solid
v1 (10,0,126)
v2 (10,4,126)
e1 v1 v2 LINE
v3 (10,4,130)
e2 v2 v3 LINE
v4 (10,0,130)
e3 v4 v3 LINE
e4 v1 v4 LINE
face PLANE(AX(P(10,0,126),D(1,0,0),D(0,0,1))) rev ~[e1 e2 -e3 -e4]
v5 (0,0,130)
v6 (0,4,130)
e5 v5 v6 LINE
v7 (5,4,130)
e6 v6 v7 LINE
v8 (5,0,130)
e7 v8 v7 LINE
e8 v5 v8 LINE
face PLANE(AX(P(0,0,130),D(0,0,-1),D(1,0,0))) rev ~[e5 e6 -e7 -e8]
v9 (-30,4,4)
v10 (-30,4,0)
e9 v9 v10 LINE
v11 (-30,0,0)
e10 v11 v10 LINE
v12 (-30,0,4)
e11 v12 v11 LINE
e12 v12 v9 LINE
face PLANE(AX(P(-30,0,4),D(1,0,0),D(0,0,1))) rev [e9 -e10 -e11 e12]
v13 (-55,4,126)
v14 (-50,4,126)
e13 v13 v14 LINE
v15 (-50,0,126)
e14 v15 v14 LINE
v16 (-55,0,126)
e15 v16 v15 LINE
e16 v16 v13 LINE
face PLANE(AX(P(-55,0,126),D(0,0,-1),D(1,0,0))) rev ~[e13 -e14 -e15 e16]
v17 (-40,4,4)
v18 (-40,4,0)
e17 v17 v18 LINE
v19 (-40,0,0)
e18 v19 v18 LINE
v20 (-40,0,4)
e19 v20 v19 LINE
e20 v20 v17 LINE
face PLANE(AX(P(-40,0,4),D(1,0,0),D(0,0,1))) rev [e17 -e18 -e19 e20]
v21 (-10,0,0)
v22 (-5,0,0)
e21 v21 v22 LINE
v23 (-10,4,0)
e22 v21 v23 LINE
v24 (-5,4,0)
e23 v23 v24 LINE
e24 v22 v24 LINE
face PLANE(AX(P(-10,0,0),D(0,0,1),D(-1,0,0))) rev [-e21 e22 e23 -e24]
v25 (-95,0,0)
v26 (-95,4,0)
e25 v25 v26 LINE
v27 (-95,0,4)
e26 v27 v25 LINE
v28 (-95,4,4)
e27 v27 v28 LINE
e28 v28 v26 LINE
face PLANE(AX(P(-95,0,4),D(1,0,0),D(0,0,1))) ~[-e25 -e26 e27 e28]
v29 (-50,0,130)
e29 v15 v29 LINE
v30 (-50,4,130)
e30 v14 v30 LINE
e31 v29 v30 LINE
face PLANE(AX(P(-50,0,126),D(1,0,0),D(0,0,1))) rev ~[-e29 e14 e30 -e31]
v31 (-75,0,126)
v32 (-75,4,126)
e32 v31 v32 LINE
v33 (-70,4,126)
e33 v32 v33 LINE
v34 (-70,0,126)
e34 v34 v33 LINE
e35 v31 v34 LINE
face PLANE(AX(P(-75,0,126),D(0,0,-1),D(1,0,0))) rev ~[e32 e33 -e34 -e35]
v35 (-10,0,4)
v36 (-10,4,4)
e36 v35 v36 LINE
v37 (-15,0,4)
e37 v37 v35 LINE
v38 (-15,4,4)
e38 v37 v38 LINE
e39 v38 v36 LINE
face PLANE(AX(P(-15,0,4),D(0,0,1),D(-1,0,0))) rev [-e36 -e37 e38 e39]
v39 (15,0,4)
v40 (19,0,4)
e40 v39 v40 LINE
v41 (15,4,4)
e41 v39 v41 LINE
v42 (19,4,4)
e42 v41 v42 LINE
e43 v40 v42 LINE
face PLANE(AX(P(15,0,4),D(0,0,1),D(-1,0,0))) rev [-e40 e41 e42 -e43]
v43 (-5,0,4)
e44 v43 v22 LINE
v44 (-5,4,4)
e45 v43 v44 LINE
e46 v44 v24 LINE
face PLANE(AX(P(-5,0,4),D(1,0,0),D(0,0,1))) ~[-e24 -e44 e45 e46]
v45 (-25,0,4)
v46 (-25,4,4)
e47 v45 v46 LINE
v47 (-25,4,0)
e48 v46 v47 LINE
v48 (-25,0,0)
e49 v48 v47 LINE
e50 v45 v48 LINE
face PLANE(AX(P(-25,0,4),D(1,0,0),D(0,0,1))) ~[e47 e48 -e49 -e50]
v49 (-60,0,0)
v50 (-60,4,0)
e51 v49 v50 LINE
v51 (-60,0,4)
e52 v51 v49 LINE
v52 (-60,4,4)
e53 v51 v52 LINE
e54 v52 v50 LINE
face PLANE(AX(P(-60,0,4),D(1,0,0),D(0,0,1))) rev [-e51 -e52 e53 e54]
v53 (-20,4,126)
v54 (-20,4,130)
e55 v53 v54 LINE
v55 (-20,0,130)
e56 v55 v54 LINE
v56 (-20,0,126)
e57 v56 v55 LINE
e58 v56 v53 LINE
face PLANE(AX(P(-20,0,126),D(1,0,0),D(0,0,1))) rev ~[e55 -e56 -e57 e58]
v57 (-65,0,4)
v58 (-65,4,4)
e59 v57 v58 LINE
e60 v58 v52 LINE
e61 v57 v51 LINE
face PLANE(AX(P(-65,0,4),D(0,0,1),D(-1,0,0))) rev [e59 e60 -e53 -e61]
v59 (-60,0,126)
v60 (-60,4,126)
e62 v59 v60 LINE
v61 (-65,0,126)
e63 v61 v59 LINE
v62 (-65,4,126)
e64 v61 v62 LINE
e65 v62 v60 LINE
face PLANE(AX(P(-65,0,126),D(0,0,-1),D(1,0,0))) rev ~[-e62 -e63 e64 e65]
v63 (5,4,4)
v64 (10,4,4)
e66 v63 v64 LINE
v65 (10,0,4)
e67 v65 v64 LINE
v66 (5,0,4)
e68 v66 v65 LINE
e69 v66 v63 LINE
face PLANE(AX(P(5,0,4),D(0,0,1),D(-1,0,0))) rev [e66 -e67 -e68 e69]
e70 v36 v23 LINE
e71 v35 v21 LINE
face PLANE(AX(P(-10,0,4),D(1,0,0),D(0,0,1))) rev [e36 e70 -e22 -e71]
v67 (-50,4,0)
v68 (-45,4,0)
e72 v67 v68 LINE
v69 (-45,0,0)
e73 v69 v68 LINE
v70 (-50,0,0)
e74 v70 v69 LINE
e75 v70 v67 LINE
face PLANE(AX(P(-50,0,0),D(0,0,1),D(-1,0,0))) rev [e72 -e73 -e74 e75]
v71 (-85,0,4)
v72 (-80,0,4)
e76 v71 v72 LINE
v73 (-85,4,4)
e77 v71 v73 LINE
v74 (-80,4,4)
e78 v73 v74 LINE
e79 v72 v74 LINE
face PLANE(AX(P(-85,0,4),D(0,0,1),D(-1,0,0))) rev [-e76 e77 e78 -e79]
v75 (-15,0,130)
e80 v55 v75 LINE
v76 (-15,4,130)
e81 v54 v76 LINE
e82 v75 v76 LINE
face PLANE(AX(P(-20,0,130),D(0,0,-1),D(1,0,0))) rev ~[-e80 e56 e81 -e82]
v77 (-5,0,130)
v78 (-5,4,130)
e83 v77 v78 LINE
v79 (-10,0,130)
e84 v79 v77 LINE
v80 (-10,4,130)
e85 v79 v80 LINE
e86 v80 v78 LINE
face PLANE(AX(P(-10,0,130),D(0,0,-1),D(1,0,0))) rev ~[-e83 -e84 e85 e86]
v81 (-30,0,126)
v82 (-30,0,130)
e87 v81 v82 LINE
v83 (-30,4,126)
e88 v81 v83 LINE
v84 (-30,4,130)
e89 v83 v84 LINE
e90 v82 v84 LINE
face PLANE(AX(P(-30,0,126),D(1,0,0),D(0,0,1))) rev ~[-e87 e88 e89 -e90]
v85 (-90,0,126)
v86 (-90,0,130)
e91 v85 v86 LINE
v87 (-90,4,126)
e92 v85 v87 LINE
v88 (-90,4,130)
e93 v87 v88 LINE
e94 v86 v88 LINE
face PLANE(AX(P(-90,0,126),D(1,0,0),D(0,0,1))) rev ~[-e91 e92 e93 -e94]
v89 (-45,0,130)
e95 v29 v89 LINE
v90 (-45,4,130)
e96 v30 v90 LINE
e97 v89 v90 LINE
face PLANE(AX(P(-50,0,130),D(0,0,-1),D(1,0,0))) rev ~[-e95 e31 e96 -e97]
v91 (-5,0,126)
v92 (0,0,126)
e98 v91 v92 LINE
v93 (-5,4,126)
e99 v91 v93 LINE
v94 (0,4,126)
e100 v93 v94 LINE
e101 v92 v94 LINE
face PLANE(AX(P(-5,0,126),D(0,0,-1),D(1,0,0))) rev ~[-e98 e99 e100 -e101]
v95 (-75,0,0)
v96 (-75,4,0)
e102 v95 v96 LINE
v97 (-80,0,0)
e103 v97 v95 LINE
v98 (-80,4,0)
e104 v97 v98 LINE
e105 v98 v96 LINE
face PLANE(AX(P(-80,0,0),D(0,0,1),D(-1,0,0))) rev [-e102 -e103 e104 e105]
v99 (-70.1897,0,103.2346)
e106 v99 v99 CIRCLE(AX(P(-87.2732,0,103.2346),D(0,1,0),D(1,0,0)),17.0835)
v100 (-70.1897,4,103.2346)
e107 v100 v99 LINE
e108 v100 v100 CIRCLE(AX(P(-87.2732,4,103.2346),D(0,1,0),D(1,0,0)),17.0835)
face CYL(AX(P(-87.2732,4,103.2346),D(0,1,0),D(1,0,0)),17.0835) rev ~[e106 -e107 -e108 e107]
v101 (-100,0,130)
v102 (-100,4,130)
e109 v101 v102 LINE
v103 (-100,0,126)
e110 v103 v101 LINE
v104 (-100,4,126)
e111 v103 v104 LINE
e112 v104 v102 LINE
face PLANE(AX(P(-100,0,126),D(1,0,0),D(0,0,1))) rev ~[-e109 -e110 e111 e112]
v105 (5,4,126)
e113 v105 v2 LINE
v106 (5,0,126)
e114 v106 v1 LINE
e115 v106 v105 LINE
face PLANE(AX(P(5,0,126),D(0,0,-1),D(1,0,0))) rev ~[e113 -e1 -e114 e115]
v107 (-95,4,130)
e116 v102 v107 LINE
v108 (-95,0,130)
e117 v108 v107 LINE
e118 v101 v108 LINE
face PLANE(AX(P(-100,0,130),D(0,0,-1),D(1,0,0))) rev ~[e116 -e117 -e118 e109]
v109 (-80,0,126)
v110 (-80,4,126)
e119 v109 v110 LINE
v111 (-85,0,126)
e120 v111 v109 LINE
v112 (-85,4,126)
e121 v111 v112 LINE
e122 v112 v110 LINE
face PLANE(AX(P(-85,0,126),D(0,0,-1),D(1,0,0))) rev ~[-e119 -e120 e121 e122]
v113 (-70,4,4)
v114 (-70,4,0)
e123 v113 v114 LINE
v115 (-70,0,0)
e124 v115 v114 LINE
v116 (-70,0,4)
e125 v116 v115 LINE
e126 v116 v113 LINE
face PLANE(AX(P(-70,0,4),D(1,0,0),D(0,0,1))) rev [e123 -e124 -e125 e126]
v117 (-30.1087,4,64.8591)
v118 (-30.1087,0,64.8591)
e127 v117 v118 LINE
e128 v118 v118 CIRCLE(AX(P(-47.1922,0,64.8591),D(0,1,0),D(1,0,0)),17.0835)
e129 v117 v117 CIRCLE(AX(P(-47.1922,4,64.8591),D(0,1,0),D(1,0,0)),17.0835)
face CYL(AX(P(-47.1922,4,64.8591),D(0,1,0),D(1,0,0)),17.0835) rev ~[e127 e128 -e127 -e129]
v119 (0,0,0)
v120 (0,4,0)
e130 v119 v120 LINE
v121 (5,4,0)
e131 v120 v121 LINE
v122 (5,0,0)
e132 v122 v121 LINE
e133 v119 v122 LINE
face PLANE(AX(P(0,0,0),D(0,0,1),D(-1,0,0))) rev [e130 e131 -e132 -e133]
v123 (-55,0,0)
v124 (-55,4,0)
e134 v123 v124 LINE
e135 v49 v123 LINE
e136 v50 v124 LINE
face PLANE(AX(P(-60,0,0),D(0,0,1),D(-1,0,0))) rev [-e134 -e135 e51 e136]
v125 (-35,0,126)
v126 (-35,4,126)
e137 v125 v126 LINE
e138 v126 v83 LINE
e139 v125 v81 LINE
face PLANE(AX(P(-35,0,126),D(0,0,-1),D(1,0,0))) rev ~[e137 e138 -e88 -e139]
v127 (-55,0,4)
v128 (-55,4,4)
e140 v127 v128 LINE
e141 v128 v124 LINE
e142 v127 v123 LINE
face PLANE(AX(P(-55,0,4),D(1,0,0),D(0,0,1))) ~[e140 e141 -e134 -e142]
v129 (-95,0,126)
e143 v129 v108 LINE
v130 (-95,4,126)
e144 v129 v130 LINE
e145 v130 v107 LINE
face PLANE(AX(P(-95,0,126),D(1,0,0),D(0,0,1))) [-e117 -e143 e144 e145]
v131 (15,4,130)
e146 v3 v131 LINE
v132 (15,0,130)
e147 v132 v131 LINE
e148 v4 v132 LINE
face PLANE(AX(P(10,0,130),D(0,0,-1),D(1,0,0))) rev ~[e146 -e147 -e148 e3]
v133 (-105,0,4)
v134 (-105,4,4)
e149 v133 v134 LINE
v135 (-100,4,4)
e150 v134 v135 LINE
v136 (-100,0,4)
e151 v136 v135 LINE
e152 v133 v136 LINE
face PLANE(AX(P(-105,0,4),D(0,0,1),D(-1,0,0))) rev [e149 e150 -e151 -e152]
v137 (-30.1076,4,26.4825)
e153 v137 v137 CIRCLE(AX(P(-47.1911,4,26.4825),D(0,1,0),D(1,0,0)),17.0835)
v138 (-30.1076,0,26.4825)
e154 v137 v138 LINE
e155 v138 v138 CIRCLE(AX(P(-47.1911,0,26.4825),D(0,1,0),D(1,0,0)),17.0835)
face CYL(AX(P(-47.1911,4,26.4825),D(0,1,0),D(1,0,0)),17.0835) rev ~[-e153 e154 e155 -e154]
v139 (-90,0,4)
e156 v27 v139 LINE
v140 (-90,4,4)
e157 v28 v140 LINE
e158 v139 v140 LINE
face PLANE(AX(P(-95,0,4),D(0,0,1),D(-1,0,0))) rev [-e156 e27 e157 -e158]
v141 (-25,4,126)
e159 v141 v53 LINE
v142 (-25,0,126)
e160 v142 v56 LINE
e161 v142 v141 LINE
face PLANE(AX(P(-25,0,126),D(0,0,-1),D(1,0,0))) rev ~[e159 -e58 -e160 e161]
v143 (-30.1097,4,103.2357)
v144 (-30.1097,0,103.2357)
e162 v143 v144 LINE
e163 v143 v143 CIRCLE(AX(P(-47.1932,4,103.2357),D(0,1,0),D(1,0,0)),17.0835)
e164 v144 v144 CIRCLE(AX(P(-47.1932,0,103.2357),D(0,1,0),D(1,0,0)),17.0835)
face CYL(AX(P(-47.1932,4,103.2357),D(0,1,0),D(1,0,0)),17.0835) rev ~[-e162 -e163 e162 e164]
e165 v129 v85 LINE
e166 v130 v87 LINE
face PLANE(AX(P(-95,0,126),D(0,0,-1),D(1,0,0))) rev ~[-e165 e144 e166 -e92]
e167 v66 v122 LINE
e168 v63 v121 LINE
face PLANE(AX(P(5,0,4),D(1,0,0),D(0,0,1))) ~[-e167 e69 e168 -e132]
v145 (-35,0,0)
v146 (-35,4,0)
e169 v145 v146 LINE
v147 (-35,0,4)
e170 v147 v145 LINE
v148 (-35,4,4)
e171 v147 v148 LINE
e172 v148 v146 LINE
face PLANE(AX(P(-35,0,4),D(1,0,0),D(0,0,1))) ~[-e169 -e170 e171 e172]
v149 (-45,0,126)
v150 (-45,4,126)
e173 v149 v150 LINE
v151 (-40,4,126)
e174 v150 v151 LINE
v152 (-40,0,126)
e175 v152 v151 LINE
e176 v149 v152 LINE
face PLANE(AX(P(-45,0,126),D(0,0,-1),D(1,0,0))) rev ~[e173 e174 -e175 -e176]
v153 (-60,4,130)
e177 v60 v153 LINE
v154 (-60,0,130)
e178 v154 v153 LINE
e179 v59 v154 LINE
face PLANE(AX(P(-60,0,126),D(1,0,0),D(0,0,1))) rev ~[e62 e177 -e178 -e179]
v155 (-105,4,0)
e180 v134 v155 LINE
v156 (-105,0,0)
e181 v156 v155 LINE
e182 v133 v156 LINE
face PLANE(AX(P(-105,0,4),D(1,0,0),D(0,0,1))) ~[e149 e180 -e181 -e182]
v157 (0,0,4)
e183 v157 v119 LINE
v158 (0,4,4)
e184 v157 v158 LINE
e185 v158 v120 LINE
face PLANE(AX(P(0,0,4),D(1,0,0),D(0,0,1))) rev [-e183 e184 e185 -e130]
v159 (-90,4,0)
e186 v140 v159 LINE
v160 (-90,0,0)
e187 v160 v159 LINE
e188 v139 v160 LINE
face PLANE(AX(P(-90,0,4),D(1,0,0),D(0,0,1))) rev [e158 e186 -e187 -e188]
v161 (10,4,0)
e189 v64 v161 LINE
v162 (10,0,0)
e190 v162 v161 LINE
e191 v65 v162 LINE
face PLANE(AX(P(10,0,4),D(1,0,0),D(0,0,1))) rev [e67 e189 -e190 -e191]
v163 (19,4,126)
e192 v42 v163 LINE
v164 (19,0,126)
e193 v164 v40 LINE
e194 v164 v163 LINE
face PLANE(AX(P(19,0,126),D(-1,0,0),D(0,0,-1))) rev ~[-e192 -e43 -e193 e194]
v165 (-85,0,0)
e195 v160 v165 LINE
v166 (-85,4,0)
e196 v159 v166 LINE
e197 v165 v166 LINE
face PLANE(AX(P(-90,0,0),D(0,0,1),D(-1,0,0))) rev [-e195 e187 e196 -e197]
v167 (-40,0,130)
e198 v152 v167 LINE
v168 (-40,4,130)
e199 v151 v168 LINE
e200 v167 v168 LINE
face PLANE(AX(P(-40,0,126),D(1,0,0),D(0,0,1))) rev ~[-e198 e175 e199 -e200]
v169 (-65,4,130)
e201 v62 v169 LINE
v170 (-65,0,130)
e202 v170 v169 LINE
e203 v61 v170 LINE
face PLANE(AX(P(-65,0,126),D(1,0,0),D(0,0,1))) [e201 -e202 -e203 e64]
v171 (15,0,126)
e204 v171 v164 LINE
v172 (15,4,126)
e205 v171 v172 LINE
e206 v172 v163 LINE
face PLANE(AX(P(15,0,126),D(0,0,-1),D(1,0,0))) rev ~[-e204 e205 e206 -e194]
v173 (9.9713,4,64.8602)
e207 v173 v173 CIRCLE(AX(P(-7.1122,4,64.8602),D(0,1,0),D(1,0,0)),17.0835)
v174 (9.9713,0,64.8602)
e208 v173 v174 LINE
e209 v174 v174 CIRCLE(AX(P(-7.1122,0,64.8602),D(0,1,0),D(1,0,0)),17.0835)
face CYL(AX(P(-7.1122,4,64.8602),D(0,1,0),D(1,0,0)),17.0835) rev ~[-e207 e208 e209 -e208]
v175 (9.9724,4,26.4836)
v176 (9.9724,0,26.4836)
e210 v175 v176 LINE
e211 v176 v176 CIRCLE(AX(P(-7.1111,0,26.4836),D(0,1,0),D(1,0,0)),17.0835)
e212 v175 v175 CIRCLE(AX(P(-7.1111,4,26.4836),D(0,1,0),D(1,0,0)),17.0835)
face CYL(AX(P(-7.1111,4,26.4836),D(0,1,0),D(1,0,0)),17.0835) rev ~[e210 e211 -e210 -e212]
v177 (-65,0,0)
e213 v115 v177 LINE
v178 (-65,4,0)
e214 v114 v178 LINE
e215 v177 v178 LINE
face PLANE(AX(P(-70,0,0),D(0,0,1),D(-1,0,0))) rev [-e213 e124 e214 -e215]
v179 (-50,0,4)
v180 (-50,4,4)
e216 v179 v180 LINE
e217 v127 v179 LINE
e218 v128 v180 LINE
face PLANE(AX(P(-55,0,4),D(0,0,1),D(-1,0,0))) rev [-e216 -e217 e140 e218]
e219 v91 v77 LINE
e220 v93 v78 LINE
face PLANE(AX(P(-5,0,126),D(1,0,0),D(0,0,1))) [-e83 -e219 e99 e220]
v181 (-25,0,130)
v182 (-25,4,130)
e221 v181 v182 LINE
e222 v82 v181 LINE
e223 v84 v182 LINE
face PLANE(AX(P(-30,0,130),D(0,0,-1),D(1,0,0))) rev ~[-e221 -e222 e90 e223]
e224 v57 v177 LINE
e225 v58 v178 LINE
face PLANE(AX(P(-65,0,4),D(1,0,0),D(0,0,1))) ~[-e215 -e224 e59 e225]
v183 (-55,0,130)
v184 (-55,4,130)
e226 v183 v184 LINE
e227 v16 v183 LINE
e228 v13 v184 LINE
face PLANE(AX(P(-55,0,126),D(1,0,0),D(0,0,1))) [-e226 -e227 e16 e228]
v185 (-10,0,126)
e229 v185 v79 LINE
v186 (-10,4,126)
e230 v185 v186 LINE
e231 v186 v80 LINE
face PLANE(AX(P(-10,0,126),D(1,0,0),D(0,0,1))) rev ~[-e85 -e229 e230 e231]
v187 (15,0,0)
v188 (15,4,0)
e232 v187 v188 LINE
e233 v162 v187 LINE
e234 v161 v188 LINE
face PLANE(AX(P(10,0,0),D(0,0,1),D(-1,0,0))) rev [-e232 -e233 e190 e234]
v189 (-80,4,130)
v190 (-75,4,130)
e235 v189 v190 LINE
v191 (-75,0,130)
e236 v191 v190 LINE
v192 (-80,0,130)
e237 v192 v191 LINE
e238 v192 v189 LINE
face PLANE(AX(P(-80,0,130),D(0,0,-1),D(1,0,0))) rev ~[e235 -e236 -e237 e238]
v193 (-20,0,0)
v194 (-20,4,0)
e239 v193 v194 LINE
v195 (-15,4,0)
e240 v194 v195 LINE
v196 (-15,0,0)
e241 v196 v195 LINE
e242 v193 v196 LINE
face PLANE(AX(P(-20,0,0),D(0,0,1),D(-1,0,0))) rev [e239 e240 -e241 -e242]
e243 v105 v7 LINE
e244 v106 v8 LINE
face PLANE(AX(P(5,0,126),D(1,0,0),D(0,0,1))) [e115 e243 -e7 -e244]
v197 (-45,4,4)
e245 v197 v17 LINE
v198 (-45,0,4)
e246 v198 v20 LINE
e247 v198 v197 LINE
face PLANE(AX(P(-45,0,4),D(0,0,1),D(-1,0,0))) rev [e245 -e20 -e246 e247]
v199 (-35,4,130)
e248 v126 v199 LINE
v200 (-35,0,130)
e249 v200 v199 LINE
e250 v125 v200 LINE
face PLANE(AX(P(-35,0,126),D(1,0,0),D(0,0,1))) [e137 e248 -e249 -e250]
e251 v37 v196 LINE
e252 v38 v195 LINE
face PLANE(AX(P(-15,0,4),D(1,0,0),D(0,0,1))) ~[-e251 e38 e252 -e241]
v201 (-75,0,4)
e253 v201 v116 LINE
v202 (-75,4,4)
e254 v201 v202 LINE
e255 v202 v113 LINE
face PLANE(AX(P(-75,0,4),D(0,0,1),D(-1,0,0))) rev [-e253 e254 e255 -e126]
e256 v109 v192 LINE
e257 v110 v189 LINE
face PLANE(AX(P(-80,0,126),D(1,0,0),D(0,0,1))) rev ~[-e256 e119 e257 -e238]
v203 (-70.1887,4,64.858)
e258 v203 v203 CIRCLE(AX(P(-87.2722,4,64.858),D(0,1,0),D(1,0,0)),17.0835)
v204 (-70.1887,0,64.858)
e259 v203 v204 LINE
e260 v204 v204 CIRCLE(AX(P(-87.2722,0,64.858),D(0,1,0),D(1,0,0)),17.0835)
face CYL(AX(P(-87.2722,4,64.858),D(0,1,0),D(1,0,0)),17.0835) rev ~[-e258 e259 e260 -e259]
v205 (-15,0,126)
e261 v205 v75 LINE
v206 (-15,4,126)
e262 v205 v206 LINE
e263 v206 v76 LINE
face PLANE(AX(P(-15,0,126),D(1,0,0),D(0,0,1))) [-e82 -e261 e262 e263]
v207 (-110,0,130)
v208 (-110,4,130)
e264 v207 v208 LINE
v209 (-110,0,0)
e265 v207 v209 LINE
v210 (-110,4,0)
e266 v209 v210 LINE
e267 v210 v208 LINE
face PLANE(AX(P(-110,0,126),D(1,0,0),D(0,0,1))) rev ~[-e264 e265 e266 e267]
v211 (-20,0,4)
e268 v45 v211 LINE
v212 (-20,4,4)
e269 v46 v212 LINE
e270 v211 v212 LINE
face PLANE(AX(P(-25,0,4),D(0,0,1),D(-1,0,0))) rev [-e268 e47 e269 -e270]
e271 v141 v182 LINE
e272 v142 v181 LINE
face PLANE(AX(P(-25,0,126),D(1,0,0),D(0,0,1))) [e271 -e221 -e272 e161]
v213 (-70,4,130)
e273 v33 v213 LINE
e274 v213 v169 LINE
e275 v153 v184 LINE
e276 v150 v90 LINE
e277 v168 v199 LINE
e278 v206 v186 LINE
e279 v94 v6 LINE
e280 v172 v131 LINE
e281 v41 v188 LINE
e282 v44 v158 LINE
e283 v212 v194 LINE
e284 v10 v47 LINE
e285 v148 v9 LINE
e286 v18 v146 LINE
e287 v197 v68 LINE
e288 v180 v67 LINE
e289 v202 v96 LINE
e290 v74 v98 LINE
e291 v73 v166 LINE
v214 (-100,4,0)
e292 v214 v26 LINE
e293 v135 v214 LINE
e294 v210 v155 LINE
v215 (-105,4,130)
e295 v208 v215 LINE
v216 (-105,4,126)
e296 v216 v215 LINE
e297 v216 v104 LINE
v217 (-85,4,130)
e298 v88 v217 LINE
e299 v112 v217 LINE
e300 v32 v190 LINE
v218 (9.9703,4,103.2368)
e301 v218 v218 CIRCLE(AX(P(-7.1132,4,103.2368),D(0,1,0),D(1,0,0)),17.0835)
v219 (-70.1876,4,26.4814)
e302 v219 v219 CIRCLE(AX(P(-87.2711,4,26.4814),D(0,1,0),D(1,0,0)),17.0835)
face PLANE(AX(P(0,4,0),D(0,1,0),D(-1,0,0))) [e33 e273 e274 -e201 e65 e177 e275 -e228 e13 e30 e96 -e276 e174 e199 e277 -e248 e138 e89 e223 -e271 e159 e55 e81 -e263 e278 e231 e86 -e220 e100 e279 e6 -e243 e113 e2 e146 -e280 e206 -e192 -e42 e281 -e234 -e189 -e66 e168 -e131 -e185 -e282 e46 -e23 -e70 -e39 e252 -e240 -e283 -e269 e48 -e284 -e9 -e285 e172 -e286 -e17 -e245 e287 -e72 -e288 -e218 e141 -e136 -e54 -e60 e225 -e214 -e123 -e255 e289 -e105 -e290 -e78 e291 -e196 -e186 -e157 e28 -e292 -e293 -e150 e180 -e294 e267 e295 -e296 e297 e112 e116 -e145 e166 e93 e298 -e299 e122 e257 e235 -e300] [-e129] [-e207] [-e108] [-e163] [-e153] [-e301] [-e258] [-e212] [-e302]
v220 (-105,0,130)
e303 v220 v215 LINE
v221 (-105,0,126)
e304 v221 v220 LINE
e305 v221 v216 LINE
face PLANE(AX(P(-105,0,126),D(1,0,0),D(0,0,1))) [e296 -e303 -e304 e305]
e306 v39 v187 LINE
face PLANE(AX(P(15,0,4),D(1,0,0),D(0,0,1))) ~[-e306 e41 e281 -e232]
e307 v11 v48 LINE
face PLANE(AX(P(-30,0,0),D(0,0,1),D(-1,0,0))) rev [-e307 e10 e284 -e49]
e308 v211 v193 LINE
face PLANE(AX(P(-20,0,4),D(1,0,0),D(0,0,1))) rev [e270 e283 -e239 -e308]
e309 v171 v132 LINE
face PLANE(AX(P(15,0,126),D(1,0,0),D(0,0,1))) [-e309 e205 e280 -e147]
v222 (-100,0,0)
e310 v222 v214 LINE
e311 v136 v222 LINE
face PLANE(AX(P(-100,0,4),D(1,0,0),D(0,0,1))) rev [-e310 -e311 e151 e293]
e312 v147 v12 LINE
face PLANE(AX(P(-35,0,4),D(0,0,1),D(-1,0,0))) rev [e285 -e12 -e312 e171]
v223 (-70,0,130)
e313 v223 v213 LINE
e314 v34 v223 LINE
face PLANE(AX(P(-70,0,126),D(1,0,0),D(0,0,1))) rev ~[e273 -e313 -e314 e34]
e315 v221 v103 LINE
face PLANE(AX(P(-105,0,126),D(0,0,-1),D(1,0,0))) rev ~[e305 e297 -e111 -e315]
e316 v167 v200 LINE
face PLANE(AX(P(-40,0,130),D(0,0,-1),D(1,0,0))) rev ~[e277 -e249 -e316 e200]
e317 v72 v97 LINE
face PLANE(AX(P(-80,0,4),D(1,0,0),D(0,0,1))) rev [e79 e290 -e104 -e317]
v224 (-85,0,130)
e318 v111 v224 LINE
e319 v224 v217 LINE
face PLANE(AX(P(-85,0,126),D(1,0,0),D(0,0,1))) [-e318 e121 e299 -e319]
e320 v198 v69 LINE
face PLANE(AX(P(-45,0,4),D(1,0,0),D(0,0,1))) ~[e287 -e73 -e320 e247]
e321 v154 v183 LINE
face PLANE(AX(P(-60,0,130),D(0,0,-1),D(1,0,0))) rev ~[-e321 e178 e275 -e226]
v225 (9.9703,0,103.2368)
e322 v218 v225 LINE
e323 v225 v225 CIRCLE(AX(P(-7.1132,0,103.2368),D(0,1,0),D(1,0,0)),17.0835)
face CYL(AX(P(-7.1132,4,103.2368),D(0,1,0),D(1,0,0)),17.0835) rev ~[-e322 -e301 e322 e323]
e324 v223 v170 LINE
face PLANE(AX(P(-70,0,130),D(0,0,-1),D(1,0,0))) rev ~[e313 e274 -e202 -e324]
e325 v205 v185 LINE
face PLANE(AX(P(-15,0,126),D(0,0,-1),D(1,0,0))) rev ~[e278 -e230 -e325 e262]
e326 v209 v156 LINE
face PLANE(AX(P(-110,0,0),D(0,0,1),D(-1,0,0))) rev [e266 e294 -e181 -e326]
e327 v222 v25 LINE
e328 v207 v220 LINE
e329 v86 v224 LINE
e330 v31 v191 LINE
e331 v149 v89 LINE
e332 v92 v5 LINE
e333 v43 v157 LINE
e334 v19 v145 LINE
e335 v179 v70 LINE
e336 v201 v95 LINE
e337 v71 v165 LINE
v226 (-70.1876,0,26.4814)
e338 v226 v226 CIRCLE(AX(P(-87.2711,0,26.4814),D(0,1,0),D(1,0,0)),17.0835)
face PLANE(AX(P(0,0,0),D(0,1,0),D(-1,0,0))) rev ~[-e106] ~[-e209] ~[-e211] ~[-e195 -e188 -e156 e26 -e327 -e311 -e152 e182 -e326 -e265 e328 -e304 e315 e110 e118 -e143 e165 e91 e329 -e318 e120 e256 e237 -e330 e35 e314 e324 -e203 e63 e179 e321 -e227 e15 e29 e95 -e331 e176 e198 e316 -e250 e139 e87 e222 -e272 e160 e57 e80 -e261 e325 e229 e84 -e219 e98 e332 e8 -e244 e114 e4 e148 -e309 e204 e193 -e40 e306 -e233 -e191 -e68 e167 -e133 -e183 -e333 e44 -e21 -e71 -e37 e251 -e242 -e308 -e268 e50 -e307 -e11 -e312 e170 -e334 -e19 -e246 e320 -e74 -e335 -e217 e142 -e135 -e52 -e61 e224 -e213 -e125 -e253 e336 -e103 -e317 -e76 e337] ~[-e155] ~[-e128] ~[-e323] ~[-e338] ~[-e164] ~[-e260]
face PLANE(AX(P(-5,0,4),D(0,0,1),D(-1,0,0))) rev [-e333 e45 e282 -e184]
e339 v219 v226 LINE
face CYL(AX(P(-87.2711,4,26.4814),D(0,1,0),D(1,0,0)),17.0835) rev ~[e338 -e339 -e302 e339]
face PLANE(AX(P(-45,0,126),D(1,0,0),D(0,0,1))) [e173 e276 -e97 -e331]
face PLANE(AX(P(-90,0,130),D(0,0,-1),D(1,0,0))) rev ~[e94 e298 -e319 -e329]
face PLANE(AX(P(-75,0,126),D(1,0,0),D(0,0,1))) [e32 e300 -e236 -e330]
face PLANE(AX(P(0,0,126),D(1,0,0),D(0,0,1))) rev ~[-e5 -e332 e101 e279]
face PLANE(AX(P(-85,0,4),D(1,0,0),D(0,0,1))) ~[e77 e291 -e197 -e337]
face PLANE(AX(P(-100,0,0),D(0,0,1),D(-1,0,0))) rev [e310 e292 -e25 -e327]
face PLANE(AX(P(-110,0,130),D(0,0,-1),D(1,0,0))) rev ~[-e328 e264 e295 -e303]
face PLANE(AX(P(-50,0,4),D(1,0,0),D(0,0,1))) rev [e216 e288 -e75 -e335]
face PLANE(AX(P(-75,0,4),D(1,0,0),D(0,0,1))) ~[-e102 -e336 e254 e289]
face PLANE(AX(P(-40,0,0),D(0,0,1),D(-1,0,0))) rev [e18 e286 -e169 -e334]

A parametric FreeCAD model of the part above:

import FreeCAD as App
import Part
import Sketcher
Q = App.Units.Quantity


def add_polygon(sketch, points):
    """Adds a closed chain of lines whose ends are joined by coincident constraints."""
    first, n = sketch.GeometryCount, len(points)
    for a, b in zip(points, points[1:] + points[:1]):
        sketch.addGeometry(Part.LineSegment(App.Vector(*a, 0), App.Vector(*b, 0)), False)
    for i in range(n):
        sketch.addConstraint(Sketcher.Constraint("Coincident", first + i, 2, first + (i + 1) % n, 1))

doc = App.newDocument("Part")
body = doc.addObject("PartDesign::Body", "Body")

# Sketch on XZ plane
sketch1 = body.newObject("Sketcher::SketchObject", "Sketch")
sketch1.AttachmentSupport = (doc.getObject("XZ_Plane"), [""])
sketch1.MapMode = "FlatFace"
add_polygon(sketch1, [(15, 126), (19, 126), (19, 65), (-110, 65), (-110, 130), (-105, 130), (-105, 126), (-100, 126), (-100, 130), (-95, 130), (-95, 126), (-90, 126), (-90, 130), (-85, 130), (-85, 126), (-80, 126), (-80, 130), (-75, 130), (-75, 126), (-70, 126), (-70, 130), (-65, 130), (-65, 126), (-60, 126), (-60, 130), (-55, 130), (-55, 126), (-50, 126), (-50, 130), (-45, 130), (-45, 126), (-40, 126), (-40, 130), (-35, 130), (-35, 126), (-30, 126), (-30, 130), (-25, 130), (-25, 126), (-20, 126), (-20, 130), (-15, 130), (-15, 126), (-10, 126), (-10, 130), (-5, 130), (-5, 126), (0, 126), (0, 130), (5, 130), (5, 126), (10, 126), (10, 130), (15, 130)])  # lines 0-53
sketch1.addConstraint(Sketcher.Constraint("Horizontal", 0))
sketch1.addConstraint(Sketcher.Constraint("Vertical", 1))
sketch1.addConstraint(Sketcher.Constraint("Horizontal", 2))
sketch1.addConstraint(Sketcher.Constraint("Vertical", 3))
sketch1.addConstraint(Sketcher.Constraint("Horizontal", 4))
sketch1.addConstraint(Sketcher.Constraint("Vertical", 5))
sketch1.addConstraint(Sketcher.Constraint("Horizontal", 6))
sketch1.addConstraint(Sketcher.Constraint("Vertical", 7))
sketch1.addConstraint(Sketcher.Constraint("Horizontal", 8))
sketch1.addConstraint(Sketcher.Constraint("Vertical", 9))
sketch1.addConstraint(Sketcher.Constraint("Horizontal", 10))
sketch1.addConstraint(Sketcher.Constraint("Vertical", 11))
sketch1.addConstraint(Sketcher.Constraint("Horizontal", 12))
sketch1.addConstraint(Sketcher.Constraint("Vertical", 13))
sketch1.addConstraint(Sketcher.Constraint("Horizontal", 14))
sketch1.addConstraint(Sketcher.Constraint("Vertical", 15))
sketch1.addConstraint(Sketcher.Constraint("Horizontal", 16))
sketch1.addConstraint(Sketcher.Constraint("Vertical", 17))
sketch1.addConstraint(Sketcher.Constraint("Horizontal", 18))
sketch1.addConstraint(Sketcher.Constraint("Vertical", 19))
sketch1.addConstraint(Sketcher.Constraint("Horizontal", 20))
sketch1.addConstraint(Sketcher.Constraint("Vertical", 21))
sketch1.addConstraint(Sketcher.Constraint("Horizontal", 22))
sketch1.addConstraint(Sketcher.Constraint("Vertical", 23))
sketch1.addConstraint(Sketcher.Constraint("Horizontal", 24))
sketch1.addConstraint(Sketcher.Constraint("Vertical", 25))
sketch1.addConstraint(Sketcher.Constraint("Horizontal", 26))
sketch1.addConstraint(Sketcher.Constraint("Vertical", 27))
sketch1.addConstraint(Sketcher.Constraint("Horizontal", 28))
sketch1.addConstraint(Sketcher.Constraint("Vertical", 29))
sketch1.addConstraint(Sketcher.Constraint("Horizontal", 30))
sketch1.addConstraint(Sketcher.Constraint("Vertical", 31))
sketch1.addConstraint(Sketcher.Constraint("Horizontal", 32))
sketch1.addConstraint(Sketcher.Constraint("Vertical", 33))
sketch1.addConstraint(Sketcher.Constraint("Horizontal", 34))
sketch1.addConstraint(Sketcher.Constraint("Vertical", 35))
sketch1.addConstraint(Sketcher.Constraint("Horizontal", 36))
sketch1.addConstraint(Sketcher.Constraint("Vertical", 37))
sketch1.addConstraint(Sketcher.Constraint("Horizontal", 38))
sketch1.addConstraint(Sketcher.Constraint("Vertical", 39))
sketch1.addConstraint(Sketcher.Constraint("Horizontal", 40))
sketch1.addConstraint(Sketcher.Constraint("Vertical", 41))
sketch1.addConstraint(Sketcher.Constraint("Horizontal", 42))
sketch1.addConstraint(Sketcher.Constraint("Vertical", 43))
sketch1.addConstraint(Sketcher.Constraint("Horizontal", 44))
sketch1.addConstraint(Sketcher.Constraint("Vertical", 45))
sketch1.addConstraint(Sketcher.Constraint("Horizontal", 46))
sketch1.addConstraint(Sketcher.Constraint("Vertical", 47))
sketch1.addConstraint(Sketcher.Constraint("Horizontal", 48))
sketch1.addConstraint(Sketcher.Constraint("Vertical", 49))
sketch1.addConstraint(Sketcher.Constraint("Horizontal", 50))
sketch1.addConstraint(Sketcher.Constraint("Vertical", 51))
sketch1.addConstraint(Sketcher.Constraint("Horizontal", 52))
sketch1.addConstraint(Sketcher.Constraint("Vertical", 53))
sketch1.addConstraint(Sketcher.Constraint("Symmetric", 44, 2, 48, 2, -2))
sketch1.addConstraint(Sketcher.Constraint("Symmetric", 42, 2, 50, 2, -2))
sketch1.addConstraint(Sketcher.Constraint("Symmetric", 40, 2, 52, 2, -2))
sketch1.addConstraint(Sketcher.Constraint("PointOnObject", 46, 2, -2))
sketch1.addConstraint(Sketcher.Constraint("Horizontal", 0, 2, 5, 2))
sketch1.addConstraint(Sketcher.Constraint("Horizontal", 4, 2, 7, 2))
sketch1.addConstraint(Sketcher.Constraint("Horizontal", 6, 2, 9, 2))
sketch1.addConstraint(Sketcher.Constraint("Horizontal", 8, 2, 11, 2))
sketch1.addConstraint(Sketcher.Constraint("Horizontal", 10, 2, 13, 2))
sketch1.addConstraint(Sketcher.Constraint("Horizontal", 12, 2, 15, 2))
sketch1.addConstraint(Sketcher.Constraint("Horizontal", 14, 2, 17, 2))
sketch1.addConstraint(Sketcher.Constraint("Horizontal", 16, 2, 19, 2))
sketch1.addConstraint(Sketcher.Constraint("Horizontal", 18, 2, 21, 2))
sketch1.addConstraint(Sketcher.Constraint("Horizontal", 20, 2, 23, 2))
sketch1.addConstraint(Sketcher.Constraint("Horizontal", 22, 2, 25, 2))
sketch1.addConstraint(Sketcher.Constraint("Horizontal", 24, 2, 27, 2))
sketch1.addConstraint(Sketcher.Constraint("Horizontal", 26, 2, 29, 2))
sketch1.addConstraint(Sketcher.Constraint("Horizontal", 28, 2, 31, 2))
sketch1.addConstraint(Sketcher.Constraint("Horizontal", 30, 2, 33, 2))
sketch1.addConstraint(Sketcher.Constraint("Horizontal", 32, 2, 35, 2))
sketch1.addConstraint(Sketcher.Constraint("Horizontal", 34, 2, 37, 2))
sketch1.addConstraint(Sketcher.Constraint("Horizontal", 36, 2, 39, 2))
sketch1.addConstraint(Sketcher.Constraint("Horizontal", 38, 2, 41, 2))
sketch1.addConstraint(Sketcher.Constraint("Horizontal", 40, 2, 43, 2))
sketch1.addConstraint(Sketcher.Constraint("Horizontal", 42, 2, 45, 2))
sketch1.addConstraint(Sketcher.Constraint("Equal", 4, 6))
sketch1.addConstraint(Sketcher.Constraint("Equal", 6, 8))
sketch1.addConstraint(Sketcher.Constraint("Equal", 8, 10))
sketch1.addConstraint(Sketcher.Constraint("Equal", 10, 12))
sketch1.addConstraint(Sketcher.Constraint("Equal", 12, 14))
sketch1.addConstraint(Sketcher.Constraint("Equal", 14, 16))
sketch1.addConstraint(Sketcher.Constraint("Equal", 16, 18))
sketch1.addConstraint(Sketcher.Constraint("Equal", 18, 20))
sketch1.addConstraint(Sketcher.Constraint("Equal", 20, 22))
sketch1.addConstraint(Sketcher.Constraint("Equal", 22, 24))
sketch1.addConstraint(Sketcher.Constraint("Equal", 24, 26))
sketch1.addConstraint(Sketcher.Constraint("Equal", 26, 28))
sketch1.addConstraint(Sketcher.Constraint("Equal", 28, 30))
sketch1.addConstraint(Sketcher.Constraint("Equal", 30, 32))
sketch1.addConstraint(Sketcher.Constraint("Equal", 32, 34))
sketch1.addConstraint(Sketcher.Constraint("Equal", 34, 36))
sketch1.addConstraint(Sketcher.Constraint("Equal", 36, 38))
sketch1.addConstraint(Sketcher.Constraint("Equal", 38, 40))
sketch1.addConstraint(Sketcher.Constraint("Equal", 40, 42))
sketch1.addConstraint(Sketcher.Constraint("Equal", 42, 44))
sketch1.addConstraint(Sketcher.Constraint("Equal", 44, 46))
sketch1.addConstraint(Sketcher.Constraint("Equal", 0, 5))
sketch1.addConstraint(Sketcher.Constraint("DistanceX", 0, 1, 0, 2, Q("4 mm")))
sketch1.addConstraint(Sketcher.Constraint("DistanceX", 2, 2, 2, 1, Q("129 mm")))
sketch1.addConstraint(Sketcher.Constraint("DistanceY", 1, 2, 1, 1, Q("61 mm")))
sketch1.addConstraint(Sketcher.Constraint("DistanceY", -1, 1, 0, 2, Q("126 mm")))
pad1 = body.newObject("PartDesign::Pad", "Pad")
pad1.Profile = sketch1
pad1.Length = 4
pad1.Reversed = True
doc.recompute()

datumplane = body.newObject("PartDesign::Plane", "DatumPlane")
datumplane.AttachmentSupport = (doc.getObject("XY_Plane"), [""])
datumplane.MapMode = "FlatFace"
datumplane.AttachmentOffset = App.Placement(App.Vector(0, 0, 65), App.Rotation())
mirrored = body.newObject("PartDesign::Mirrored", "Mirrored")
mirrored.Originals = [pad1]
mirrored.MirrorPlane = (datumplane, [""])
body.Tip = mirrored

# Sketch on XZ plane
sketch2 = body.newObject("Sketcher::SketchObject", "Sketch001")
sketch2.AttachmentSupport = (doc.getObject("XZ_Plane"), [""])
sketch2.MapMode = "FlatFace"
sketch2.AttachmentOffset = App.Placement(App.Vector(0, 0, -4), App.Rotation())
sketch2.addGeometry(Part.Circle(App.Vector(-87, 26, 0), App.Vector(0, 0, 1), 17), False)
sketch2.addGeometry(Part.Circle(App.Vector(-7, 26, 0), App.Vector(0, 0, 1), 17), False)
sketch2.addGeometry(Part.Circle(App.Vector(-7, 65, 0), App.Vector(0, 0, 1), 17), False)
sketch2.addGeometry(Part.Circle(App.Vector(-7, 103, 0), App.Vector(0, 0, 1), 17), False)
sketch2.addGeometry(Part.Circle(App.Vector(-87, 103, 0), App.Vector(0, 0, 1), 17), False)
sketch2.addGeometry(Part.Circle(App.Vector(-87, 65, 0), App.Vector(0, 0, 1), 17), False)
sketch2.addGeometry(Part.Circle(App.Vector(-47, 65, 0), App.Vector(0, 0, 1), 17), False)
sketch2.addGeometry(Part.Circle(App.Vector(-47, 103, 0), App.Vector(0, 0, 1), 17), False)
sketch2.addGeometry(Part.Circle(App.Vector(-47, 26, 0), App.Vector(0, 0, 1), 17), False)
sketch2.addConstraint(Sketcher.Constraint("Equal", 0, 1))
sketch2.addConstraint(Sketcher.Constraint("Equal", 1, 2))
sketch2.addConstraint(Sketcher.Constraint("Equal", 2, 3))
sketch2.addConstraint(Sketcher.Constraint("Equal", 3, 4))
sketch2.addConstraint(Sketcher.Constraint("Equal", 4, 5))
sketch2.addConstraint(Sketcher.Constraint("Equal", 5, 6))
sketch2.addConstraint(Sketcher.Constraint("Equal", 6, 7))
sketch2.addConstraint(Sketcher.Constraint("Equal", 7, 8))
sketch2.addConstraint(Sketcher.Constraint("Diameter", 0, Q("34.167 mm")))
sketch2.addConstraint(Sketcher.Constraint("DistanceX", 0, 3, 1, 3, Q("80.16 mm")))
sketch2.addConstraint(Sketcher.Constraint("DistanceX", 4, 3, 3, 3, Q("80.16 mm")))
sketch2.addConstraint(Sketcher.Constraint("DistanceX", 5, 3, 2, 3, Q("80.16 mm")))
sketch2.addConstraint(Sketcher.Constraint("DistanceX", 6, 3, 2, 3, Q("40.08 mm")))
sketch2.addConstraint(Sketcher.Constraint("DistanceX", 7, 3, 3, 3, Q("40.08 mm")))
sketch2.addConstraint(Sketcher.Constraint("DistanceX", 8, 3, 1, 3, Q("40.08 mm")))
sketch2.addConstraint(Sketcher.Constraint("DistanceX", 0, 3, -1, 1, Q("87.271 mm")))
sketch2.addConstraint(Sketcher.Constraint("DistanceY", -1, 1, 5, 3, Q("64.858 mm")))
sketch2.addConstraint(Sketcher.Constraint("DistanceY", -1, 1, 6, 3, Q("64.859 mm")))
sketch2.addConstraint(Sketcher.Constraint("DistanceX", 2, 3, 1, 3, Q("0.001 mm")))
sketch2.addConstraint(Sketcher.Constraint("DistanceX", 3, 3, 2, 3, Q("0.001 mm")))
sketch2.addConstraint(Sketcher.Constraint("DistanceY", 1, 3, 4, 3, Q("76.751 mm")))
sketch2.addConstraint(Sketcher.Constraint("DistanceY", 6, 3, 2, 3, Q("0.001 mm")))
sketch2.addConstraint(Sketcher.Constraint("DistanceY", 7, 3, 3, 3, Q("0.001 mm")))
sketch2.addConstraint(Sketcher.Constraint("DistanceY", 4, 3, 7, 3, Q("0.001 mm")))
sketch2.addConstraint(Sketcher.Constraint("DistanceY", 8, 3, 1, 3, Q("0.001 mm")))
sketch2.addConstraint(Sketcher.Constraint("DistanceY", 0, 3, 8, 3, Q("0.001 mm")))
sketch2.addConstraint(Sketcher.Constraint("DistanceY", -1, 1, 0, 3, Q("26.4814 mm")))
pocket1 = body.newObject("PartDesign::Pocket", "Pocket")
pocket1.Profile = sketch2
pocket1.Length = 6.5
pocket1.Reversed = True

doc.recompute()
